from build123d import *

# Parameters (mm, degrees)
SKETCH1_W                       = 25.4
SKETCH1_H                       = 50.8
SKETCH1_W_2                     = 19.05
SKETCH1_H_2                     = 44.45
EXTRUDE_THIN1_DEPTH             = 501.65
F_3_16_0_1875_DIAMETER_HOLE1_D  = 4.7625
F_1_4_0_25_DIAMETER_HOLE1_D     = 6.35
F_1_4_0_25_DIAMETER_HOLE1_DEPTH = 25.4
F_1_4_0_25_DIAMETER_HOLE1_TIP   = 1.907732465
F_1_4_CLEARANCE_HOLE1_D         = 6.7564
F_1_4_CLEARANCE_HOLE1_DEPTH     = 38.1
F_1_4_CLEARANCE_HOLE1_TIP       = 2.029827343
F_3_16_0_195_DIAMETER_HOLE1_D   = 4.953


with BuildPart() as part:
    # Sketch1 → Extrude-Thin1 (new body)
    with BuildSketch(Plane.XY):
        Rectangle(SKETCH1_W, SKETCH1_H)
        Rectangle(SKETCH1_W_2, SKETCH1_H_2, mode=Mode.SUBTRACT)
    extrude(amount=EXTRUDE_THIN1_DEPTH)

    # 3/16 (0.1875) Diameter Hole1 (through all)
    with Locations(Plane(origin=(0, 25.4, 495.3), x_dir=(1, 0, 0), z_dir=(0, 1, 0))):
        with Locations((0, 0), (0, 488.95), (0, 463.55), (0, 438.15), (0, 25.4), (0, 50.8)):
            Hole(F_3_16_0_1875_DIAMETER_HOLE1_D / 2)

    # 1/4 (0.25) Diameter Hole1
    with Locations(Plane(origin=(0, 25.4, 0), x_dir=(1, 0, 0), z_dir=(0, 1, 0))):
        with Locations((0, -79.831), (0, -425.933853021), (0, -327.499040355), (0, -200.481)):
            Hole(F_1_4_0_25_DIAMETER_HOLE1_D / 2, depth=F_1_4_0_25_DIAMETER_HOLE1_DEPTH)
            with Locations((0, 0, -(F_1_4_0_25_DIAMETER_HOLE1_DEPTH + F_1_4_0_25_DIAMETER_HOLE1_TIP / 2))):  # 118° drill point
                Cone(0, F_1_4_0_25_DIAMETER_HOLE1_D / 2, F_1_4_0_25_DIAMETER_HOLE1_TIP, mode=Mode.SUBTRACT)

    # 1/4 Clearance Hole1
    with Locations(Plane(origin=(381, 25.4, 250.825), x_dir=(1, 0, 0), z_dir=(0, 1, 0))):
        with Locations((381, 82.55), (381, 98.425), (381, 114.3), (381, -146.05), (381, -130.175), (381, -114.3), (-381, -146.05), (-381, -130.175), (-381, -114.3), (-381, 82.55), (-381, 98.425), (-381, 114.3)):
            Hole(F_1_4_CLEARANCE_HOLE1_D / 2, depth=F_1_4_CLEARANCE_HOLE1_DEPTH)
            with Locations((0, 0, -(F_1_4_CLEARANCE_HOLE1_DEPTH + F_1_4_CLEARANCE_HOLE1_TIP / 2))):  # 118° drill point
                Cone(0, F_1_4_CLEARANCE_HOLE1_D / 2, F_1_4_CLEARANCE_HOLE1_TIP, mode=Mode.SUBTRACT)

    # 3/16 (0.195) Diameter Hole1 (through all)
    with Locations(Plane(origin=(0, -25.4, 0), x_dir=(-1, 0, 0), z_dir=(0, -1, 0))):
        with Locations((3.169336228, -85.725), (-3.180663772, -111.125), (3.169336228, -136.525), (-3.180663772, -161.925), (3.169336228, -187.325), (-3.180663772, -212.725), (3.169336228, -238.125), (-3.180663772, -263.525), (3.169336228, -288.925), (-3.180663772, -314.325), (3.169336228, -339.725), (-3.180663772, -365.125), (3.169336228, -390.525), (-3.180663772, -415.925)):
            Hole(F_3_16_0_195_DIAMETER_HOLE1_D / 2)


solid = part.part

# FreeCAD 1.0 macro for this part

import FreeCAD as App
import Part
import Sketcher
from FreeCAD import Vector
Q = App.Units.Quantity


def add_polygon(sketch, points):
    """Adds a closed chain of lines whose ends are joined by coincident constraints."""
    first, n = sketch.GeometryCount, len(points)
    for a, b in zip(points, points[1:] + points[:1]):
        sketch.addGeometry(Part.LineSegment(App.Vector(*a, 0), App.Vector(*b, 0)), False)
    for i in range(n):
        sketch.addConstraint(Sketcher.Constraint("Coincident", first + i, 2, first + (i + 1) % n, 1))

doc = App.newDocument("Part")
body = doc.addObject("PartDesign::Body", "Body")

# Sketch on XY plane
sketch1 = doc.addObject("Sketcher::SketchObject", "Sketch")
body.addObject(sketch1)
sketch1.AttachmentSupport = (doc.XY_Plane, [""])
sketch1.MapMode = "FlatFace"
add_polygon(sketch1, [(-13, 25), (-13, -25), (13, -25), (13, 25)])  # lines 0-3
add_polygon(sketch1, [(10, -22), (-10, -22), (-10, 22), (10, 22)])  # lines 4-7
sketch1.addConstraint(Sketcher.Constraint("Vertical", 0))
sketch1.addConstraint(Sketcher.Constraint("Horizontal", 1))
sketch1.addConstraint(Sketcher.Constraint("Vertical", 2))
sketch1.addConstraint(Sketcher.Constraint("Horizontal", 3))
sketch1.addConstraint(Sketcher.Constraint("Horizontal", 4))
sketch1.addConstraint(Sketcher.Constraint("Vertical", 5))
sketch1.addConstraint(Sketcher.Constraint("Horizontal", 6))
sketch1.addConstraint(Sketcher.Constraint("Vertical", 7))
sketch1.addConstraint(Sketcher.Constraint("Symmetric", 0, 2, 2, 2, -1, 1))
sketch1.addConstraint(Sketcher.Constraint("Symmetric", 4, 2, 6, 2, -1, 1))
sketch1.addConstraint(Sketcher.Constraint("DistanceX", 1, 1, 1, 2, Q("1 in")))
sketch1.addConstraint(Sketcher.Constraint("DistanceY", 0, 2, 0, 1, Q("2 in")))
sketch1.addConstraint(Sketcher.Constraint("DistanceX", 4, 2, 4, 1, Q("0.75 in")))
sketch1.addConstraint(Sketcher.Constraint("DistanceY", 5, 1, 5, 2, Q("1.75 in")))
pad1 = doc.addObject("PartDesign::Pad", "Pad")
body.addObject(pad1)
pad1.Profile = sketch1
pad1.Length = Q("19.75 in")

# Sketch on XZ plane
sketch2 = doc.addObject("Sketcher::SketchObject", "Sketch001")
body.addObject(sketch2)
sketch2.AttachmentSupport = (doc.XZ_Plane, [""])
sketch2.MapMode = "FlatFace"
sketch2.AttachmentOffset = App.Placement(Vector(0, 0, -1 * 25.4), App.Rotation())
sketch2.addGeometry(Part.Circle(Vector(0, 495.3, 0), Vector(0, 0, 1), 2.4), False)
sketch2.addGeometry(Part.Circle(Vector(0, 6.3, 0), Vector(0, 0, 1), 2.4), False)
sketch2.addGeometry(Part.Circle(Vector(0, 31.8, 0), Vector(0, 0, 1), 2.4), False)
sketch2.addGeometry(Part.Circle(Vector(0, 57.1, 0), Vector(0, 0, 1), 2.4), False)
sketch2.addGeometry(Part.Circle(Vector(0, 469.9, 0), Vector(0, 0, 1), 2.4), False)
sketch2.addGeometry(Part.Circle(Vector(0, 444.5, 0), Vector(0, 0, 1), 2.4), False)
sketch2.addConstraint(Sketcher.Constraint("Equal", 0, 1))
sketch2.addConstraint(Sketcher.Constraint("Equal", 1, 2))
sketch2.addConstraint(Sketcher.Constraint("Equal", 2, 3))
sketch2.addConstraint(Sketcher.Constraint("Equal", 3, 4))
sketch2.addConstraint(Sketcher.Constraint("Equal", 4, 5))
sketch2.addConstraint(Sketcher.Constraint("PointOnObject", 0, 3, -2))
sketch2.addConstraint(Sketcher.Constraint("PointOnObject", 1, 3, -2))
sketch2.addConstraint(Sketcher.Constraint("PointOnObject", 2, 3, -2))
sketch2.addConstraint(Sketcher.Constraint("PointOnObject", 3, 3, -2))
sketch2.addConstraint(Sketcher.Constraint("PointOnObject", 4, 3, -2))
sketch2.addConstraint(Sketcher.Constraint("PointOnObject", 5, 3, -2))
sketch2.addConstraint(Sketcher.Constraint("Diameter", 0, Q("0.1875 in")))
sketch2.addConstraint(Sketcher.Constraint("DistanceY", 1, 3, 2, 3, Q("1 in")))
sketch2.addConstraint(Sketcher.Constraint("DistanceY", 2, 3, 3, 3, Q("1 in")))
sketch2.addConstraint(Sketcher.Constraint("DistanceY", 4, 3, 0, 3, Q("1 in")))
sketch2.addConstraint(Sketcher.Constraint("DistanceY", 5, 3, 4, 3, Q("1 in")))
sketch2.addConstraint(Sketcher.Constraint("DistanceY", -1, 1, 0, 3, Q("19.5 in")))
sketch2.addConstraint(Sketcher.Constraint("DistanceY", -1, 1, 1, 3, Q("0.25 in")))
doc.recompute()
hole = doc.addObject("PartDesign::Hole", "Hole")
body.addObject(hole)
hole.Profile = sketch2
hole.ThreadType = "None"
hole.Diameter = Q("0.1875 in")
hole.DepthType = "ThroughAll"
hole.Reversed = True

# Sketch on XZ plane
sketch3 = doc.addObject("Sketcher::SketchObject", "Sketch002")
body.addObject(sketch3)
sketch3.AttachmentSupport = (doc.XZ_Plane, [""])
sketch3.MapMode = "FlatFace"
sketch3.AttachmentOffset = App.Placement(Vector(0, 0, -1 * 25.4), App.Rotation())
sketch3.addGeometry(Part.Circle(Vector(0, 79.8, 0), Vector(0, 0, 1), 3.2), False)
sketch3.addGeometry(Part.Circle(Vector(0, 425.9, 0), Vector(0, 0, 1), 3.2), False)
sketch3.addGeometry(Part.Circle(Vector(0, 327.5, 0), Vector(0, 0, 1), 3.2), False)
sketch3.addGeometry(Part.Circle(Vector(0, 200.5, 0), Vector(0, 0, 1), 3.2), False)
sketch3.addConstraint(Sketcher.Constraint("Equal", 0, 1))
sketch3.addConstraint(Sketcher.Constraint("Equal", 1, 2))
sketch3.addConstraint(Sketcher.Constraint("Equal", 2, 3))
sketch3.addConstraint(Sketcher.Constraint("PointOnObject", 0, 3, -2))
sketch3.addConstraint(Sketcher.Constraint("PointOnObject", 1, 3, -2))
sketch3.addConstraint(Sketcher.Constraint("PointOnObject", 2, 3, -2))
sketch3.addConstraint(Sketcher.Constraint("PointOnObject", 3, 3, -2))
sketch3.addConstraint(Sketcher.Constraint("Diameter", 0, Q("0.25 in")))
sketch3.addConstraint(Sketcher.Constraint("DistanceY", 0, 3, 3, 3, Q("4.75 in")))
sketch3.addConstraint(Sketcher.Constraint("DistanceY", -1, 1, 0, 3, Q("79.831 mm")))
sketch3.addConstraint(Sketcher.Constraint("DistanceY", -1, 1, 2, 3, Q("327.49904 mm")))
sketch3.addConstraint(Sketcher.Constraint("DistanceY", -1, 1, 1, 3, Q("425.933853 mm")))
doc.recompute()
hole2 = doc.addObject("PartDesign::Hole", "Hole001")
body.addObject(hole2)
hole2.Profile = sketch3
hole2.ThreadType = "None"
hole2.Diameter = Q("0.25 in")
hole2.DepthType = "Dimension"
hole2.Depth = Q("1 in")
hole2.DrillPoint = "Angled"
hole2.DrillPointAngle = 118
hole2.Reversed = True

# Sketch on XZ plane
sketch4 = doc.addObject("Sketcher::SketchObject", "Sketch003")
body.addObject(sketch4)
sketch4.AttachmentSupport = (doc.XZ_Plane, [""])
sketch4.MapMode = "FlatFace"
sketch4.AttachmentOffset = App.Placement(Vector(0, 0, -1 * 25.4), App.Rotation())
sketch4.addGeometry(Part.Circle(Vector(762, 168.3, 0), Vector(0, 0, 1), 3.4), False)
sketch4.addGeometry(Part.Circle(Vector(762, 152.4, 0), Vector(0, 0, 1), 3.4), False)
sketch4.addGeometry(Part.Circle(Vector(762, 136.5, 0), Vector(0, 0, 1), 3.4), False)
sketch4.addGeometry(Part.Circle(Vector(762, 396.9, 0), Vector(0, 0, 1), 3.4), False)
sketch4.addGeometry(Part.Circle(Vector(762, 381, 0), Vector(0, 0, 1), 3.4), False)
sketch4.addGeometry(Part.Circle(Vector(762, 365.1, 0), Vector(0, 0, 1), 3.4), False)
sketch4.addGeometry(Part.Circle(Vector(0, 396.9, 0), Vector(0, 0, 1), 3.4), False)
sketch4.addGeometry(Part.Circle(Vector(0, 381, 0), Vector(0, 0, 1), 3.4), False)
sketch4.addGeometry(Part.Circle(Vector(0, 365.1, 0), Vector(0, 0, 1), 3.4), False)
sketch4.addGeometry(Part.Circle(Vector(0, 168.3, 0), Vector(0, 0, 1), 3.4), False)
sketch4.addGeometry(Part.Circle(Vector(0, 152.4, 0), Vector(0, 0, 1), 3.4), False)
sketch4.addGeometry(Part.Circle(Vector(0, 136.5, 0), Vector(0, 0, 1), 3.4), False)
sketch4.addConstraint(Sketcher.Constraint("Equal", 0, 1))
sketch4.addConstraint(Sketcher.Constraint("Equal", 1, 2))
sketch4.addConstraint(Sketcher.Constraint("Equal", 2, 3))
sketch4.addConstraint(Sketcher.Constraint("Equal", 3, 4))
sketch4.addConstraint(Sketcher.Constraint("Equal", 4, 5))
sketch4.addConstraint(Sketcher.Constraint("Equal", 5, 6))
sketch4.addConstraint(Sketcher.Constraint("Equal", 6, 7))
sketch4.addConstraint(Sketcher.Constraint("Equal", 7, 8))
sketch4.addConstraint(Sketcher.Constraint("Equal", 8, 9))
sketch4.addConstraint(Sketcher.Constraint("Equal", 9, 10))
sketch4.addConstraint(Sketcher.Constraint("Equal", 10, 11))
sketch4.addConstraint(Sketcher.Constraint("PointOnObject", 6, 3, -2))
sketch4.addConstraint(Sketcher.Constraint("PointOnObject", 7, 3, -2))
sketch4.addConstraint(Sketcher.Constraint("PointOnObject", 8, 3, -2))
sketch4.addConstraint(Sketcher.Constraint("PointOnObject", 9, 3, -2))
sketch4.addConstraint(Sketcher.Constraint("PointOnObject", 10, 3, -2))
sketch4.addConstraint(Sketcher.Constraint("PointOnObject", 11, 3, -2))
sketch4.addConstraint(Sketcher.Constraint("Horizontal", 3, 3, 6, 3))
sketch4.addConstraint(Sketcher.Constraint("Horizontal", 4, 3, 7, 3))
sketch4.addConstraint(Sketcher.Constraint("Horizontal", 5, 3, 8, 3))
sketch4.addConstraint(Sketcher.Constraint("Horizontal", 0, 3, 9, 3))
sketch4.addConstraint(Sketcher.Constraint("Horizontal", 1, 3, 10, 3))
sketch4.addConstraint(Sketcher.Constraint("Horizontal", 2, 3, 11, 3))
sketch4.addConstraint(Sketcher.Constraint("Vertical", 0, 3, 1, 3))
sketch4.addConstraint(Sketcher.Constraint("Vertical", 1, 3, 2, 3))
sketch4.addConstraint(Sketcher.Constraint("Vertical", 2, 3, 3, 3))
sketch4.addConstraint(Sketcher.Constraint("Vertical", 3, 3, 4, 3))
sketch4.addConstraint(Sketcher.Constraint("Vertical", 4, 3, 5, 3))
sketch4.addConstraint(Sketcher.Constraint("Diameter", 0, Q("0.266 in")))
sketch4.addConstraint(Sketcher.Constraint("DistanceX", -1, 1, 0, 3, Q("30 in")))
sketch4.addConstraint(Sketcher.Constraint("DistanceY", -1, 1, 1, 3, Q("6 in")))
sketch4.addConstraint(Sketcher.Constraint("DistanceY", -1, 1, 4, 3, Q("15 in")))
sketch4.addConstraint(Sketcher.Constraint("DistanceY", 0, 3, 3, 3, Q("9 in")))
sketch4.addConstraint(Sketcher.Constraint("DistanceY", 2, 3, 5, 3, Q("9 in")))
sketch4.addConstraint(Sketcher.Constraint("DistanceY", 2, 3, 0, 3, Q("1.25 in")))
sketch4.addConstraint(Sketcher.Constraint("DistanceY", -1, 1, 0, 3, Q("6.625 in")))
doc.recompute()
hole3 = doc.addObject("PartDesign::Hole", "Hole002")
body.addObject(hole3)
hole3.Profile = sketch4
hole3.ThreadType = "None"
hole3.Diameter = Q("0.266 in")
hole3.DepthType = "Dimension"
hole3.Depth = Q("1.5 in")
hole3.DrillPoint = "Angled"
hole3.DrillPointAngle = 118
hole3.Reversed = True

# Sketch on XZ plane
sketch5 = doc.addObject("Sketcher::SketchObject", "Sketch004")
body.addObject(sketch5)
sketch5.AttachmentSupport = (doc.XZ_Plane, [""])
sketch5.MapMode = "FlatFace"
sketch5.AttachmentOffset = App.Placement(Vector(0, 0, 1 * 25.4), App.Rotation())
sketch5.addGeometry(Part.Circle(Vector(-3.2, 85.7, 0), Vector(0, 0, 1), 2.5), False)
sketch5.addGeometry(Part.Circle(Vector(3.2, 111.1, 0), Vector(0, 0, 1), 2.5), False)
sketch5.addGeometry(Part.Circle(Vector(-3.2, 136.5, 0), Vector(0, 0, 1), 2.5), False)
sketch5.addGeometry(Part.Circle(Vector(3.2, 161.9, 0), Vector(0, 0, 1), 2.5), False)
sketch5.addGeometry(Part.Circle(Vector(-3.2, 187.3, 0), Vector(0, 0, 1), 2.5), False)
sketch5.addGeometry(Part.Circle(Vector(3.2, 212.7, 0), Vector(0, 0, 1), 2.5), False)
sketch5.addGeometry(Part.Circle(Vector(-3.2, 238.1, 0), Vector(0, 0, 1), 2.5), False)
sketch5.addGeometry(Part.Circle(Vector(3.2, 263.5, 0), Vector(0, 0, 1), 2.5), False)
sketch5.addGeometry(Part.Circle(Vector(-3.2, 288.9, 0), Vector(0, 0, 1), 2.5), False)
sketch5.addGeometry(Part.Circle(Vector(3.2, 314.3, 0), Vector(0, 0, 1), 2.5), False)
sketch5.addGeometry(Part.Circle(Vector(-3.2, 339.7, 0), Vector(0, 0, 1), 2.5), False)
sketch5.addGeometry(Part.Circle(Vector(3.2, 365.1, 0), Vector(0, 0, 1), 2.5), False)
sketch5.addGeometry(Part.Circle(Vector(-3.2, 390.5, 0), Vector(0, 0, 1), 2.5), False)
sketch5.addGeometry(Part.Circle(Vector(3.2, 415.9, 0), Vector(0, 0, 1), 2.5), False)
sketch5.addConstraint(Sketcher.Constraint("Equal", 0, 1))
sketch5.addConstraint(Sketcher.Constraint("Equal", 1, 2))
sketch5.addConstraint(Sketcher.Constraint("Equal", 2, 3))
sketch5.addConstraint(Sketcher.Constraint("Equal", 3, 4))
sketch5.addConstraint(Sketcher.Constraint("Equal", 4, 5))
sketch5.addConstraint(Sketcher.Constraint("Equal", 5, 6))
sketch5.addConstraint(Sketcher.Constraint("Equal", 6, 7))
sketch5.addConstraint(Sketcher.Constraint("Equal", 7, 8))
sketch5.addConstraint(Sketcher.Constraint("Equal", 8, 9))
sketch5.addConstraint(Sketcher.Constraint("Equal", 9, 10))
sketch5.addConstraint(Sketcher.Constraint("Equal", 10, 11))
sketch5.addConstraint(Sketcher.Constraint("Equal", 11, 12))
sketch5.addConstraint(Sketcher.Constraint("Equal", 12, 13))
sketch5.addConstraint(Sketcher.Constraint("Vertical", 0, 3, 2, 3))
sketch5.addConstraint(Sketcher.Constraint("Vertical", 1, 3, 3, 3))
sketch5.addConstraint(Sketcher.Constraint("Vertical", 2, 3, 4, 3))
sketch5.addConstraint(Sketcher.Constraint("Vertical", 3, 3, 5, 3))
sketch5.addConstraint(Sketcher.Constraint("Vertical", 4, 3, 6, 3))
sketch5.addConstraint(Sketcher.Constraint("Vertical", 5, 3, 7, 3))
sketch5.addConstraint(Sketcher.Constraint("Vertical", 6, 3, 8, 3))
sketch5.addConstraint(Sketcher.Constraint("Vertical", 7, 3, 9, 3))
sketch5.addConstraint(Sketcher.Constraint("Vertical", 8, 3, 10, 3))
sketch5.addConstraint(Sketcher.Constraint("Vertical", 9, 3, 11, 3))
sketch5.addConstraint(Sketcher.Constraint("Vertical", 10, 3, 12, 3))
sketch5.addConstraint(Sketcher.Constraint("Vertical", 11, 3, 13, 3))
sketch5.addConstraint(Sketcher.Constraint("Diameter", 0, Q("0.195 in")))
sketch5.addConstraint(Sketcher.Constraint("DistanceY", 0, 3, 1, 3, Q("1 in")))
sketch5.addConstraint(Sketcher.Constraint("DistanceY", 1, 3, 2, 3, Q("1 in")))
sketch5.addConstraint(Sketcher.Constraint("DistanceY", 2, 3, 3, 3, Q("1 in")))
sketch5.addConstraint(Sketcher.Constraint("DistanceY", 3, 3, 4, 3, Q("1 in")))
sketch5.addConstraint(Sketcher.Constraint("DistanceY", 4, 3, 5, 3, Q("1 in")))
sketch5.addConstraint(Sketcher.Constraint("DistanceY", 5, 3, 6, 3, Q("1 in")))
sketch5.addConstraint(Sketcher.Constraint("DistanceY", 6, 3, 7, 3, Q("1 in")))
sketch5.addConstraint(Sketcher.Constraint("DistanceY", 7, 3, 8, 3, Q("1 in")))
sketch5.addConstraint(Sketcher.Constraint("DistanceY", 8, 3, 9, 3, Q("1 in")))
sketch5.addConstraint(Sketcher.Constraint("DistanceY", 9, 3, 10, 3, Q("1 in")))
sketch5.addConstraint(Sketcher.Constraint("DistanceY", 10, 3, 11, 3, Q("1 in")))
sketch5.addConstraint(Sketcher.Constraint("DistanceY", 11, 3, 12, 3, Q("1 in")))
sketch5.addConstraint(Sketcher.Constraint("DistanceY", 12, 3, 13, 3, Q("1 in")))
sketch5.addConstraint(Sketcher.Constraint("DistanceX", 0, 3, 1, 3, Q("0.25 in")))
sketch5.addConstraint(Sketcher.Constraint("DistanceY", -1, 1, 0, 3, Q("3.375 in")))
sketch5.addConstraint(Sketcher.Constraint("DistanceX", 0, 3, -1, 1, Q("3.169336 mm")))
doc.recompute()
hole4 = doc.addObject("PartDesign::Hole", "Hole003")
body.addObject(hole4)
hole4.Profile = sketch5
hole4.ThreadType = "None"
hole4.Diameter = Q("0.195 in")
hole4.DepthType = "ThroughAll"

doc.recompute()
